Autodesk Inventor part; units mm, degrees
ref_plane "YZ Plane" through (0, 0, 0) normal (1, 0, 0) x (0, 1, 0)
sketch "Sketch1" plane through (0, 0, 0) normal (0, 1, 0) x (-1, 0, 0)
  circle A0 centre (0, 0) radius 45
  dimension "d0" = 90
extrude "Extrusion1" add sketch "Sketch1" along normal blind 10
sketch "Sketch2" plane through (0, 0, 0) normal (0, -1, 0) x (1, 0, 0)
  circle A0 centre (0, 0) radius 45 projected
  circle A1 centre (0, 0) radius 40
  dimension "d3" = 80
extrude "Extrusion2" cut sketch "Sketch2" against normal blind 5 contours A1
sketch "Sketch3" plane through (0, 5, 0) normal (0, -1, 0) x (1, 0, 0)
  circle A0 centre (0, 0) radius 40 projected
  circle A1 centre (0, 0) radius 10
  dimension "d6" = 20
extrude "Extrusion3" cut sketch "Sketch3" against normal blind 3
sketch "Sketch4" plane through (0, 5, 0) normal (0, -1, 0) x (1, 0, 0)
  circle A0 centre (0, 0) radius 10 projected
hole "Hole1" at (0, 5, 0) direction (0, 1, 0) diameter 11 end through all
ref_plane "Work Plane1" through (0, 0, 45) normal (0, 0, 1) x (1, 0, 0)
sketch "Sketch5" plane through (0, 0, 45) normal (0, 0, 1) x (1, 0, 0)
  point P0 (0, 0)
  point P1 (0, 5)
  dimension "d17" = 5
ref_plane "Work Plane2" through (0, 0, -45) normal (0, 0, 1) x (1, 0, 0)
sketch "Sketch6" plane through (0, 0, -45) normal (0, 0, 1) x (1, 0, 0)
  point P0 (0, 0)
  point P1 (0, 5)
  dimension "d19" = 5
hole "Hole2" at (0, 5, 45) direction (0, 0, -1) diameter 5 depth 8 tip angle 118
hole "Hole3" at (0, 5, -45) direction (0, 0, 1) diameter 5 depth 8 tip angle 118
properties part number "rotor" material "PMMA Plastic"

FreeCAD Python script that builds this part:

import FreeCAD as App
import Part
import Sketcher

doc = App.newDocument("Part")
body = doc.addObject("PartDesign::Body", "Body")

# Sketch on XZ plane
sketch1 = doc.addObject("Sketcher::SketchObject", "Sketch")
body.addObject(sketch1)
sketch1.AttachmentSupport = (doc.XZ_Plane, [""])
sketch1.MapMode = "FlatFace"
sketch1.addGeometry(Part.Circle(App.Vector(0, 0, 0), App.Vector(0, 0, 1), 45), False)
sketch1.addConstraint([
    Sketcher.Constraint("Coincident", 0, 3, -1, 1),
    Sketcher.Constraint("Diameter", 0, 90.0),
])
pad1 = doc.addObject("PartDesign::Pad", "Pad")
body.addObject(pad1)
pad1.Profile = sketch1
pad1.Length = 10
pad1.Reversed = True

# Sketch on XZ plane
sketch2 = doc.addObject("Sketcher::SketchObject", "Sketch001")
body.addObject(sketch2)
sketch2.AttachmentSupport = (doc.XZ_Plane, [""])
sketch2.MapMode = "FlatFace"
sketch2.addGeometry(Part.Circle(App.Vector(0, 0, 0), App.Vector(0, 0, 1), 40), False)
sketch2.addConstraint([
    Sketcher.Constraint("Coincident", 0, 3, -1, 1),
    Sketcher.Constraint("Diameter", 0, 80.0),
])
pocket1 = doc.addObject("PartDesign::Pocket", "Pocket")
body.addObject(pocket1)
pocket1.Profile = sketch2
pocket1.Length = 5

# Sketch on XZ plane
sketch3 = doc.addObject("Sketcher::SketchObject", "Sketch002")
body.addObject(sketch3)
sketch3.AttachmentSupport = (doc.XZ_Plane, [""])
sketch3.MapMode = "FlatFace"
sketch3.AttachmentOffset = App.Placement(App.Vector(0, 0, -5), App.Rotation())
sketch3.addGeometry([
    Part.Circle(App.Vector(0, 0, 0), App.Vector(0, 0, 1), 40),
    Part.Circle(App.Vector(0, 0, 0), App.Vector(0, 0, 1), 10),
], False)
sketch3.addConstraint([
    Sketcher.Constraint("Coincident", 0, 3, -1, 1),
    Sketcher.Constraint("Coincident", 1, 3, -1, 1),
    Sketcher.Constraint("Diameter", 1, 20.0),
    Sketcher.Constraint("Diameter", 0, 80.0),
])
pocket2 = doc.addObject("PartDesign::Pocket", "Pocket001")
body.addObject(pocket2)
pocket2.Profile = sketch3
pocket2.Length = 3

# Sketch on XZ plane
sketch4 = doc.addObject("Sketcher::SketchObject", "Sketch003")
body.addObject(sketch4)
sketch4.AttachmentSupport = (doc.XZ_Plane, [""])
sketch4.MapMode = "FlatFace"
sketch4.AttachmentOffset = App.Placement(App.Vector(0, 0, -5), App.Rotation())
sketch4.addGeometry(Part.Circle(App.Vector(0, 0, 0), App.Vector(0, 0, 1), 6), False)
sketch4.addConstraint([
    Sketcher.Constraint("Coincident", 0, 3, -1, 1),
    Sketcher.Constraint("Diameter", 0, 11.0),
])
doc.recompute()
hole = doc.addObject("PartDesign::Hole", "Hole")
body.addObject(hole)
hole.Profile = sketch4
hole.ThreadType = "None"
hole.Diameter = 11
hole.DepthType = "ThroughAll"

# Sketch on XY plane
sketch5 = doc.addObject("Sketcher::SketchObject", "Sketch004")
body.addObject(sketch5)
sketch5.AttachmentSupport = (doc.XY_Plane, [""])
sketch5.MapMode = "FlatFace"
sketch5.AttachmentOffset = App.Placement(App.Vector(0, 0, 45), App.Rotation())
sketch5.addGeometry(Part.Circle(App.Vector(0, 5, 0), App.Vector(0, 0, 1), 2.5), False)
sketch5.addConstraint([
    Sketcher.Constraint("PointOnObject", 0, 3, -2),
    Sketcher.Constraint("Diameter", 0, 5.0),
    Sketcher.Constraint("DistanceY", -1, 1, 0, 3, 5.0),
])
doc.recompute()
hole2 = doc.addObject("PartDesign::Hole", "Hole001")
body.addObject(hole2)
hole2.Profile = sketch5
hole2.ThreadType = "None"
hole2.Diameter = 5
hole2.DepthType = "Dimension"
hole2.Depth = 8
hole2.DrillPoint = "Angled"
hole2.DrillPointAngle = 118

# Sketch on XY plane
sketch6 = doc.addObject("Sketcher::SketchObject", "Sketch005")
body.addObject(sketch6)
sketch6.AttachmentSupport = (doc.XY_Plane, [""])
sketch6.MapMode = "FlatFace"
sketch6.AttachmentOffset = App.Placement(App.Vector(0, 0, -45), App.Rotation())
sketch6.addGeometry(Part.Circle(App.Vector(0, 5, 0), App.Vector(0, 0, 1), 2.5), False)
sketch6.addConstraint([
    Sketcher.Constraint("PointOnObject", 0, 3, -2),
    Sketcher.Constraint("Diameter", 0, 5.0),
    Sketcher.Constraint("DistanceY", -1, 1, 0, 3, 5.0),
])
doc.recompute()
hole3 = doc.addObject("PartDesign::Hole", "Hole002")
body.addObject(hole3)
hole3.Profile = sketch6
hole3.ThreadType = "None"
hole3.Diameter = 5
hole3.DepthType = "Dimension"
hole3.Depth = 8
hole3.DrillPoint = "Angled"
hole3.DrillPointAngle = 118
hole3.Reversed = True

doc.recompute()
